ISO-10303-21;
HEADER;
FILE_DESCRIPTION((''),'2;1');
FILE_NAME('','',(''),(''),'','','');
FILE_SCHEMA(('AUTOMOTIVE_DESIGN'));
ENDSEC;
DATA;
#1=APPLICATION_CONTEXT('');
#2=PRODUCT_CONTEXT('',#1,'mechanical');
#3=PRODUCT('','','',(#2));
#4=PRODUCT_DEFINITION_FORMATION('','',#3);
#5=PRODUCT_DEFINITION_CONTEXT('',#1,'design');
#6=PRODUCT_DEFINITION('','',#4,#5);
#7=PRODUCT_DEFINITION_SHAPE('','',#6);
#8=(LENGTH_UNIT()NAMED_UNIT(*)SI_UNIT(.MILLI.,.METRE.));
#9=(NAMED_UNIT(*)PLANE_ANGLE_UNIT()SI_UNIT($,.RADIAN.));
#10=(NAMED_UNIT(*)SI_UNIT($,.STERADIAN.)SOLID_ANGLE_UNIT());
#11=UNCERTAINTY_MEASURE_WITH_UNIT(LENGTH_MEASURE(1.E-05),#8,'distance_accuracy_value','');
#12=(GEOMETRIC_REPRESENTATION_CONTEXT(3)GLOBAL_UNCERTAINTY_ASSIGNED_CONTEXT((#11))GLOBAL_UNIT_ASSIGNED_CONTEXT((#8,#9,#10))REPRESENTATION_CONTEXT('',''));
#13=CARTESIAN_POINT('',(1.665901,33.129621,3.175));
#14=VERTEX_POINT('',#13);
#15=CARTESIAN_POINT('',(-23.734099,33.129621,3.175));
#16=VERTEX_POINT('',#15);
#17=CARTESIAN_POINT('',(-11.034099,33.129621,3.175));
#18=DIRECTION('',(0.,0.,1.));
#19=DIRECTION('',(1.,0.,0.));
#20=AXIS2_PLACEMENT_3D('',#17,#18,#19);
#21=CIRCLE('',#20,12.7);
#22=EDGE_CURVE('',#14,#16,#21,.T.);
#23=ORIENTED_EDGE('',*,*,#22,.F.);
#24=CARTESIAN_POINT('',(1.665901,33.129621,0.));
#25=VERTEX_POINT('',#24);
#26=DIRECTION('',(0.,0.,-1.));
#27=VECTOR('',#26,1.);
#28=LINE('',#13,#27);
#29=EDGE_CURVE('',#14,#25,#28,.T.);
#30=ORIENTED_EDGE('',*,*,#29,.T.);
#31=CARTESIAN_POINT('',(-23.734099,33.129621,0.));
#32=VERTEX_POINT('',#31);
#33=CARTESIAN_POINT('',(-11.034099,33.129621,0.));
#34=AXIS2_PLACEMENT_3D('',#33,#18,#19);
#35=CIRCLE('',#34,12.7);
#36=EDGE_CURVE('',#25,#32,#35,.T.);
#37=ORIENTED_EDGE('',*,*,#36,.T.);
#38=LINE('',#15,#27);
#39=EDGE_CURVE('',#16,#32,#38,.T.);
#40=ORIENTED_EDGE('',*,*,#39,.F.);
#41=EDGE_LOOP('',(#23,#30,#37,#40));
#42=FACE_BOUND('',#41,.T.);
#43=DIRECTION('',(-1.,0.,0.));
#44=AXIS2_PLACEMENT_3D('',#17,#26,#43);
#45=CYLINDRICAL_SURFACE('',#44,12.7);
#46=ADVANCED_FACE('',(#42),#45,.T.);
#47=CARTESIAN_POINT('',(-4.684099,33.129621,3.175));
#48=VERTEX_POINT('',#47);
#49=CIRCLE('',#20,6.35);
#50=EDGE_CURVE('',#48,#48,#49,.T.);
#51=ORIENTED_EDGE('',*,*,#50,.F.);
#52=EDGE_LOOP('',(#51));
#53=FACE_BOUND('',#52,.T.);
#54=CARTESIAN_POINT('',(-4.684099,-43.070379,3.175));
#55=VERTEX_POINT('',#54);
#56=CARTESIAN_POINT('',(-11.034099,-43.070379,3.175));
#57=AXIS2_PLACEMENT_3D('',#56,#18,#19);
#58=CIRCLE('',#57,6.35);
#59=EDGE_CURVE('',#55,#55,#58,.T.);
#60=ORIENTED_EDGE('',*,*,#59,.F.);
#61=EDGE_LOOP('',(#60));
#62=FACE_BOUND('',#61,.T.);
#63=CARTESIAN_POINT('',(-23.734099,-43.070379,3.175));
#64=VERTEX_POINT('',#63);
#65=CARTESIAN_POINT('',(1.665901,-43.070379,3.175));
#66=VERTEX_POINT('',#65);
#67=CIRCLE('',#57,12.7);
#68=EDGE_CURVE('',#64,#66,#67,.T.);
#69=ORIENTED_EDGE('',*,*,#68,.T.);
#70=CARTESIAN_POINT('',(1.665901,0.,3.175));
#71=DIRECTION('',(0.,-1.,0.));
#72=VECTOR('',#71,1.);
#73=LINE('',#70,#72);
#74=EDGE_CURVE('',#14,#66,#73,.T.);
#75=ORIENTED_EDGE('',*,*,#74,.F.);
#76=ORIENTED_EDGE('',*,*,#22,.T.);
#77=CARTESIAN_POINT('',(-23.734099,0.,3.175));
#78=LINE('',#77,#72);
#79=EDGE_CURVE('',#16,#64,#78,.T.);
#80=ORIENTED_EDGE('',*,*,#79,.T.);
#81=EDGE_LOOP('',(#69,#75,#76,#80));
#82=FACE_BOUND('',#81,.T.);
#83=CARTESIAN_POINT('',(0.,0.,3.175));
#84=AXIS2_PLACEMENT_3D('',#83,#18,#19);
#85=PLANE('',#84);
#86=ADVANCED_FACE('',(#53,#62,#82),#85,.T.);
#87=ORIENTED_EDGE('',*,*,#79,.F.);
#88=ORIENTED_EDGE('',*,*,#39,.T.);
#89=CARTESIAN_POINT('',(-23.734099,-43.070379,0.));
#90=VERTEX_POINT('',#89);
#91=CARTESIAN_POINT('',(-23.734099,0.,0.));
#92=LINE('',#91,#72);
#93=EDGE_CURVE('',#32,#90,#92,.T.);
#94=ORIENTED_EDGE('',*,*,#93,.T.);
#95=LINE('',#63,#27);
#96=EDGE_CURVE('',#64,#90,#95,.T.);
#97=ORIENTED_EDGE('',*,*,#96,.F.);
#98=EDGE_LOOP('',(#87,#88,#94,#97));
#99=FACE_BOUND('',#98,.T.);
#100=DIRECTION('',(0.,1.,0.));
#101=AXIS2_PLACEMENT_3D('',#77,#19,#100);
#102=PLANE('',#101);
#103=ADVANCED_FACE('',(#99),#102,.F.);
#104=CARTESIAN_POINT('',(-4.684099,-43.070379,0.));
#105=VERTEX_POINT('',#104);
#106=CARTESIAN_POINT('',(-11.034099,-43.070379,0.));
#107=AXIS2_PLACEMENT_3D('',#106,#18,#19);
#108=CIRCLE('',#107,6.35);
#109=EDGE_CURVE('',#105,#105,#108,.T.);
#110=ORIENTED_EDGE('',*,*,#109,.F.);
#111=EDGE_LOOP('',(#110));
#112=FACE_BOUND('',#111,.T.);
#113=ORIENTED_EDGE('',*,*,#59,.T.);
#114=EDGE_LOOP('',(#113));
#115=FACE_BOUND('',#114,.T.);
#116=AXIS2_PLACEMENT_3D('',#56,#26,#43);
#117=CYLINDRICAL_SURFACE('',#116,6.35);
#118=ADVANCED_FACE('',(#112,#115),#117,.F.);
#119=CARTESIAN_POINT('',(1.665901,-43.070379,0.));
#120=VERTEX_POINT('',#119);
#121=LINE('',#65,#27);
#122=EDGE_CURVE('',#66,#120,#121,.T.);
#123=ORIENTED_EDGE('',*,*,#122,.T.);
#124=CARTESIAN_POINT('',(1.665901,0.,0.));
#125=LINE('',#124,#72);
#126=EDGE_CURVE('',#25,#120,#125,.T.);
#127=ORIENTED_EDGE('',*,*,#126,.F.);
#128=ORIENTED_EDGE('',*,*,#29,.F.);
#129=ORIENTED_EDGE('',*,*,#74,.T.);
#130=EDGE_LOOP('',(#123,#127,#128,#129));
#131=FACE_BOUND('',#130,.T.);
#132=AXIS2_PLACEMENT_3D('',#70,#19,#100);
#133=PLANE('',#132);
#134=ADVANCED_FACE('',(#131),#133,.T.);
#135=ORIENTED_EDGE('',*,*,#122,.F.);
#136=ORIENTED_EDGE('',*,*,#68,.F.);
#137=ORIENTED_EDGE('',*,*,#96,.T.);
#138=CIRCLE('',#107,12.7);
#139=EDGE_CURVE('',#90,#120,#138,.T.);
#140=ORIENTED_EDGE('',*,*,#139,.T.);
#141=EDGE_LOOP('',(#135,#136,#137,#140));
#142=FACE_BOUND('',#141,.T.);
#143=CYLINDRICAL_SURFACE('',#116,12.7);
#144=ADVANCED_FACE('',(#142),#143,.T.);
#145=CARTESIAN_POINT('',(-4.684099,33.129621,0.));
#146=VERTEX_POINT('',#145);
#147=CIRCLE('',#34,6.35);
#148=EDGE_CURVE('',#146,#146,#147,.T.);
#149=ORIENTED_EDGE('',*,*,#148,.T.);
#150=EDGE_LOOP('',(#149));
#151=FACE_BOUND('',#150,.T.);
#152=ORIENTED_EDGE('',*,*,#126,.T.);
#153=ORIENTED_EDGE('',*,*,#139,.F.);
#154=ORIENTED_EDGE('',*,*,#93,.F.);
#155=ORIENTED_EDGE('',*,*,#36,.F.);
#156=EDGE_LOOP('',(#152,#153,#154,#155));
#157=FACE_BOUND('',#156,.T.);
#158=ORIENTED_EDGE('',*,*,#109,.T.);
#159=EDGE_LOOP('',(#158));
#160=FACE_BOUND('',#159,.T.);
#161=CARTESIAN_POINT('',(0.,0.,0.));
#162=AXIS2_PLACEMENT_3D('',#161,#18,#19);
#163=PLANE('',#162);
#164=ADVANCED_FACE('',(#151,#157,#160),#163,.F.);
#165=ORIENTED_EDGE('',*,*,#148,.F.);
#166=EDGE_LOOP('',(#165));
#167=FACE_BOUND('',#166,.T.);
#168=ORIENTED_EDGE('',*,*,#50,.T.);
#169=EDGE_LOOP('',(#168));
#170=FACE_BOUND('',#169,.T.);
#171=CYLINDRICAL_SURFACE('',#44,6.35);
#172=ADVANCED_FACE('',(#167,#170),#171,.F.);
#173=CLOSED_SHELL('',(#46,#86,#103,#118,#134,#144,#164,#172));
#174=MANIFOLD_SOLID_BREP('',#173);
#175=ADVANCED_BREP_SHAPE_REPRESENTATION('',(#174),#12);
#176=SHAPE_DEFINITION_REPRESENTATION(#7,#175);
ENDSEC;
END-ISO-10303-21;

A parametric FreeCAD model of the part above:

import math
import FreeCAD as App
import Part
import Sketcher
Q = App.Units.Quantity

doc = App.newDocument("Part")
params = doc.addObject("Spreadsheet::Sheet", "Params")
for row, (alias, value) in enumerate([
    ("sketch1_diameter", "0.5 in"),
    ("sketch1_radius", "0.5 in"),
    ("sketch1_height", "3 in"),
    ("pad1_length", "0.125 in"),
], start=1):
    params.set(f"A{row}", alias)
    params.set(f"B{row}", "=" + value)
    params.setAlias(f"B{row}", alias)

body = doc.addObject("PartDesign::Body", "Body")

# Sketch on XY plane
sketch1 = body.newObject("Sketcher::SketchObject", "Sketch")
sketch1.AttachmentSupport = (doc.getObject("XY_Plane"), [""])
sketch1.MapMode = "FlatFace"
sketch1.addGeometry([
    Part.ArcOfCircle(Part.Circle(App.Vector(-11, 33, 0), App.Vector(0, 0, 1), 13), math.radians(0), math.radians(180)),  # 0
    Part.LineSegment(App.Vector(-24, 33, 0), App.Vector(-24, -43, 0)),  # 1
    Part.ArcOfCircle(Part.Circle(App.Vector(-11, -43, 0), App.Vector(0, 0, 1), 13), math.radians(180), math.radians(360)),  # 2
    Part.LineSegment(App.Vector(2, -43, 0), App.Vector(2, 33, 0)),  # 3
    Part.Circle(App.Vector(-11, -43, 0), App.Vector(0, 0, 1), 6),  # 4
    Part.Circle(App.Vector(-11, 33, 0), App.Vector(0, 0, 1), 6),  # 5
], False)
sketch1.addConstraint([
    Sketcher.Constraint("Tangent", 0, 2, 1, 1),
    Sketcher.Constraint("Tangent", 1, 2, 2, 1),
    Sketcher.Constraint("Tangent", 2, 2, 3, 1),
    Sketcher.Constraint("Tangent", 3, 2, 0, 1),
    Sketcher.Constraint("Vertical", 1),
    Sketcher.Constraint("Vertical", 3),
    Sketcher.Constraint("Coincident", 4, 3, 2, 3),
    Sketcher.Constraint("Coincident", 5, 3, 0, 3),
    Sketcher.Constraint("Equal", 4, 5),
    Sketcher.Constraint("Diameter", 4, Q("0.5 in")),
    Sketcher.Constraint("Radius", 0, Q("0.5 in")),
    Sketcher.Constraint("DistanceY", 1, 2, 1, 1, Q("3 in")),
    Sketcher.Constraint("DistanceX", 0, 3, -1, 1, Q("11.034099 mm")),
    Sketcher.Constraint("DistanceY", -1, 1, 0, 3, Q("33.129621 mm")),
])
sketch1.setExpression("Constraints[9]", "Params.sketch1_diameter")
sketch1.setExpression("Constraints[10]", "Params.sketch1_radius")
sketch1.setExpression("Constraints[11]", "Params.sketch1_height")
pad1 = body.newObject("PartDesign::Pad", "Pad")
pad1.Profile = sketch1
pad1.setExpression("Length", "Params.pad1_length")

doc.recompute()
